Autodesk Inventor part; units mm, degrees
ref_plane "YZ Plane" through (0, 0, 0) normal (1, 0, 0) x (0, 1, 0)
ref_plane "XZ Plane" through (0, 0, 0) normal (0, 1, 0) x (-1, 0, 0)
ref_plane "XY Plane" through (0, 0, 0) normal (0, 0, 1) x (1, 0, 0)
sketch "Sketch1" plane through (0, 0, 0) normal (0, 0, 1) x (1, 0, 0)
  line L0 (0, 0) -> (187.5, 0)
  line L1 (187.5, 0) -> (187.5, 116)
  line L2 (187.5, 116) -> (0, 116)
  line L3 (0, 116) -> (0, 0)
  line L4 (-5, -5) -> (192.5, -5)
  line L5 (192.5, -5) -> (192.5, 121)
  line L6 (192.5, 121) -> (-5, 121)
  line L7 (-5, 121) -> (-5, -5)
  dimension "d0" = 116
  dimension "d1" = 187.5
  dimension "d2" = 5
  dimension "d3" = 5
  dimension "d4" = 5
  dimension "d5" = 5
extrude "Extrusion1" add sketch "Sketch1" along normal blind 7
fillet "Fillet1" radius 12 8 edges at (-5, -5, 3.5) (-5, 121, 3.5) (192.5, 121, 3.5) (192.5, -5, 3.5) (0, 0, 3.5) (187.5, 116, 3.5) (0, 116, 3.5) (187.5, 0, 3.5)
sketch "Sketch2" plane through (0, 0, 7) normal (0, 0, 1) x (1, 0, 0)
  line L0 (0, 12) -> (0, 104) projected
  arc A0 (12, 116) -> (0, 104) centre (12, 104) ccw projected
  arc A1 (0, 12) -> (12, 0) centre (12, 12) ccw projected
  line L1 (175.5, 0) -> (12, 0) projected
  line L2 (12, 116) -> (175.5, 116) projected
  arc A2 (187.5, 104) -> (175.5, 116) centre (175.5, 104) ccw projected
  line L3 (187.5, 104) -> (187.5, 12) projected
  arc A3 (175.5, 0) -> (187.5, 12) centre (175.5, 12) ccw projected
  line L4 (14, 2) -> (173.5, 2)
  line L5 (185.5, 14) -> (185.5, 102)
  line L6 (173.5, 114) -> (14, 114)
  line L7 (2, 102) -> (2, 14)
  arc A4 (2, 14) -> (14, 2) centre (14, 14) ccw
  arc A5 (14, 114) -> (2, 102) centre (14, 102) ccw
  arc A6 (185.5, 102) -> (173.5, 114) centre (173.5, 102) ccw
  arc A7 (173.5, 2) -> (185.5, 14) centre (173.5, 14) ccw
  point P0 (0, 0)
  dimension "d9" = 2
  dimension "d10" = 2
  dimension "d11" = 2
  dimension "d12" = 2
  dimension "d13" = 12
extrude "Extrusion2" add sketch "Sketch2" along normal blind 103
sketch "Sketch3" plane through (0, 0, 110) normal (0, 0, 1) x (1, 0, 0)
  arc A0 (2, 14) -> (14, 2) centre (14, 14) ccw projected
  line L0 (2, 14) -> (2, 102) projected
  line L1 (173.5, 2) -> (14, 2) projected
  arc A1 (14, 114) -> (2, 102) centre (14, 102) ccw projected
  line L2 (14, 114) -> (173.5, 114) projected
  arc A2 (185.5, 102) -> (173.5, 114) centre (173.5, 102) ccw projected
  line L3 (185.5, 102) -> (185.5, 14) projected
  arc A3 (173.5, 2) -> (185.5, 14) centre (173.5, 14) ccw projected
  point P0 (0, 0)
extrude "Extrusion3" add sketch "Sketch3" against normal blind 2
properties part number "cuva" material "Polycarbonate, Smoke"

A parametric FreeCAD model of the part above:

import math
import FreeCAD as App
import Part
import Sketcher
from FreeCAD import Vector
Q = App.Units.Quantity


def edges_at(feature, points):
    """Names of the edges that pass closest to the given points."""
    edges = feature.Shape.Edges
    near = lambda p: min(range(len(edges)), key=lambda i: edges[i].distToShape(Part.Vertex(*p))[0])
    return sorted({f"Edge{near(p) + 1}" for p in points})


def add_polygon(sketch, points):
    """Adds a closed chain of lines whose ends are joined by coincident constraints."""
    first, n = sketch.GeometryCount, len(points)
    for a, b in zip(points, points[1:] + points[:1]):
        sketch.addGeometry(Part.LineSegment(App.Vector(*a, 0), App.Vector(*b, 0)), False)
    for i in range(n):
        sketch.addConstraint(Sketcher.Constraint("Coincident", first + i, 2, first + (i + 1) % n, 1))

doc = App.newDocument("Part")
body = doc.addObject("PartDesign::Body", "Body")
body.AllowCompound = True

sketch1 = doc.addObject("Sketcher::SketchObject", "Sketch")
body.addObject(sketch1)
sketch1.AttachmentSupport = (doc.XY_Plane, [""])
sketch1.MapMode = "FlatFace"
add_polygon(sketch1, [(-5, 121), (-5, -5), (192, -5), (192, 121)])
add_polygon(sketch1, [(188, 0), (0, 0), (0, 116), (188, 116)])
sketch1.addConstraint([
    Sketcher.Constraint("Vertical", 0),
    Sketcher.Constraint("Horizontal", 1),
    Sketcher.Constraint("Vertical", 2),
    Sketcher.Constraint("Horizontal", 3),
    Sketcher.Constraint("Horizontal", 4),
    Sketcher.Constraint("Vertical", 5),
    Sketcher.Constraint("Horizontal", 6),
    Sketcher.Constraint("Vertical", 7),
    Sketcher.Constraint("Coincident", 4, 2, -1, 1),
    Sketcher.Constraint("DistanceY", 5, 1, 5, 2, Q("116 mm")),
    Sketcher.Constraint("DistanceX", 4, 2, 4, 1, Q("187.5 mm")),
    Sketcher.Constraint("DistanceX", 0, 2, -1, 1, Q("5 mm")),
    Sketcher.Constraint("DistanceY", 0, 2, -1, 1, Q("5 mm")),
    Sketcher.Constraint("DistanceY", 5, 2, 3, 2, Q("5 mm")),
    Sketcher.Constraint("DistanceX", 6, 2, 2, 2, Q("5 mm")),
])
pad1 = doc.addObject("PartDesign::Pad", "Pad")
body.addObject(pad1)
pad1.Profile = sketch1
pad1.Length = 7
doc.recompute()

fillet = doc.addObject("PartDesign::Fillet", "Fillet")
body.addObject(fillet)
fillet.Base = (pad1, edges_at(pad1, [
    (-5, -5, 3.5),
    (-5, 121, 3.5),
    (192.5, 121, 3.5),
    (192.5, -5, 3.5),
    (0, 0, 3.5),
    (187.5, 116, 3.5),
    (0, 116, 3.5),
    (187.5, 0, 3.5),
]))
fillet.Radius = 12

sketch2 = doc.addObject("Sketcher::SketchObject", "Sketch001")
body.addObject(sketch2)
sketch2.AttachmentSupport = (doc.XY_Plane, [""])
sketch2.MapMode = "FlatFace"
sketch2.AttachmentOffset = App.Placement(Vector(0, 0, 7), App.Rotation())
sketch2.addGeometry([
    Part.LineSegment(Vector(0, 104, 0), Vector(0, 12, 0)),
    Part.ArcOfCircle(Part.Circle(Vector(12, 12, 0), Vector(0, 0, 1), 12), math.radians(180), math.radians(270)),
    Part.LineSegment(Vector(12, 0, 0), Vector(176, 0, 0)),
    Part.ArcOfCircle(Part.Circle(Vector(176, 12, 0), Vector(0, 0, 1), 12), math.radians(-90), math.radians(0)),
    Part.LineSegment(Vector(188, 12, 0), Vector(188, 104, 0)),
    Part.ArcOfCircle(Part.Circle(Vector(176, 104, 0), Vector(0, 0, 1), 12), math.radians(0), math.radians(90)),
    Part.LineSegment(Vector(176, 116, 0), Vector(12, 116, 0)),
    Part.ArcOfCircle(Part.Circle(Vector(12, 104, 0), Vector(0, 0, 1), 12), math.radians(90), math.radians(180)),
    Part.LineSegment(Vector(174, 2, 0), Vector(14, 2, 0)),
    Part.ArcOfCircle(Part.Circle(Vector(14, 14, 0), Vector(0, 0, 1), 12), math.radians(180), math.radians(270)),
    Part.LineSegment(Vector(2, 14, 0), Vector(2, 102, 0)),
    Part.ArcOfCircle(Part.Circle(Vector(14, 102, 0), Vector(0, 0, 1), 12), math.radians(90), math.radians(180)),
    Part.LineSegment(Vector(14, 114, 0), Vector(174, 114, 0)),
    Part.ArcOfCircle(Part.Circle(Vector(174, 102, 0), Vector(0, 0, 1), 12), math.radians(0), math.radians(90)),
    Part.LineSegment(Vector(186, 102, 0), Vector(186, 14, 0)),
    Part.ArcOfCircle(Part.Circle(Vector(174, 14, 0), Vector(0, 0, 1), 12), math.radians(-90), math.radians(0)),
], False)
sketch2.addConstraint([
    Sketcher.Constraint("Tangent", 0, 2, 1, 1),
    Sketcher.Constraint("Tangent", 1, 2, 2, 1),
    Sketcher.Constraint("Tangent", 2, 2, 3, 1),
    Sketcher.Constraint("Tangent", 3, 2, 4, 1),
    Sketcher.Constraint("Tangent", 4, 2, 5, 1),
    Sketcher.Constraint("Tangent", 5, 2, 6, 1),
    Sketcher.Constraint("Tangent", 6, 2, 7, 1),
    Sketcher.Constraint("Tangent", 7, 2, 0, 1),
    Sketcher.Constraint("Tangent", 8, 2, 9, 2),
    Sketcher.Constraint("Tangent", 9, 1, 10, 1),
    Sketcher.Constraint("Tangent", 10, 2, 11, 2),
    Sketcher.Constraint("Tangent", 11, 1, 12, 1),
    Sketcher.Constraint("Tangent", 12, 2, 13, 2),
    Sketcher.Constraint("Tangent", 13, 1, 14, 1),
    Sketcher.Constraint("Tangent", 14, 2, 15, 2),
    Sketcher.Constraint("Tangent", 15, 1, 8, 1),
    Sketcher.Constraint("Vertical", 0),
    Sketcher.Constraint("Horizontal", 2),
    Sketcher.Constraint("Vertical", 4),
    Sketcher.Constraint("Horizontal", 6),
    Sketcher.Constraint("Horizontal", 8),
    Sketcher.Constraint("Vertical", 10),
    Sketcher.Constraint("Horizontal", 12),
    Sketcher.Constraint("Vertical", 14),
    Sketcher.Constraint("Equal", 1, 3),
    Sketcher.Constraint("Equal", 3, 5),
    Sketcher.Constraint("Equal", 5, 7),
    Sketcher.Constraint("Equal", 7, 9),
    Sketcher.Constraint("Equal", 9, 11),
    Sketcher.Constraint("Equal", 11, 13),
    Sketcher.Constraint("Equal", 13, 15),
    Sketcher.Constraint("PointOnObject", 0, 2, -2),
    Sketcher.Constraint("PointOnObject", 1, 2, -1),
    Sketcher.Constraint("Radius", 1, Q("12 mm")),
    Sketcher.Constraint("DistanceY", -1, 1, 8, 2, Q("2 mm")),
    Sketcher.Constraint("DistanceX", -1, 1, 9, 1, Q("2 mm")),
    Sketcher.Constraint("DistanceY", 11, 3, 7, 3, Q("2 mm")),
    Sketcher.Constraint("DistanceX", 13, 3, 5, 3, Q("2 mm")),
    Sketcher.Constraint("DistanceY", 0, 2, 0, 1, Q("92 mm")),
    Sketcher.Constraint("DistanceX", 2, 1, 2, 2, Q("163.5 mm")),
])
pad2 = doc.addObject("PartDesign::Pad", "Pad001")
body.addObject(pad2)
pad2.Profile = sketch2
pad2.Length = 103

sketch3 = doc.addObject("Sketcher::SketchObject", "Sketch002")
body.addObject(sketch3)
sketch3.AttachmentSupport = (doc.XY_Plane, [""])
sketch3.MapMode = "FlatFace"
sketch3.AttachmentOffset = App.Placement(Vector(0, 0, 110), App.Rotation())
sketch3.addGeometry([
    Part.LineSegment(Vector(2, 102, 0), Vector(2, 14, 0)),
    Part.ArcOfCircle(Part.Circle(Vector(14, 14, 0), Vector(0, 0, 1), 12), math.radians(180), math.radians(270)),
    Part.LineSegment(Vector(14, 2, 0), Vector(174, 2, 0)),
    Part.ArcOfCircle(Part.Circle(Vector(174, 14, 0), Vector(0, 0, 1), 12), math.radians(-90), math.radians(0)),
    Part.LineSegment(Vector(186, 14, 0), Vector(186, 102, 0)),
    Part.ArcOfCircle(Part.Circle(Vector(174, 102, 0), Vector(0, 0, 1), 12), math.radians(0), math.radians(90)),
    Part.LineSegment(Vector(174, 114, 0), Vector(14, 114, 0)),
    Part.ArcOfCircle(Part.Circle(Vector(14, 102, 0), Vector(0, 0, 1), 12), math.radians(90), math.radians(180)),
], False)
sketch3.addConstraint([
    Sketcher.Constraint("Tangent", 0, 2, 1, 1),
    Sketcher.Constraint("Tangent", 1, 2, 2, 1),
    Sketcher.Constraint("Tangent", 2, 2, 3, 1),
    Sketcher.Constraint("Tangent", 3, 2, 4, 1),
    Sketcher.Constraint("Tangent", 4, 2, 5, 1),
    Sketcher.Constraint("Tangent", 5, 2, 6, 1),
    Sketcher.Constraint("Tangent", 6, 2, 7, 1),
    Sketcher.Constraint("Tangent", 7, 2, 0, 1),
    Sketcher.Constraint("Vertical", 0),
    Sketcher.Constraint("Horizontal", 2),
    Sketcher.Constraint("Vertical", 4),
    Sketcher.Constraint("Horizontal", 6),
    Sketcher.Constraint("Equal", 1, 3),
    Sketcher.Constraint("Equal", 3, 5),
    Sketcher.Constraint("Equal", 5, 7),
    Sketcher.Constraint("Radius", 1, Q("12 mm")),
    Sketcher.Constraint("DistanceY", 0, 2, 0, 1, Q("88 mm")),
    Sketcher.Constraint("DistanceX", 2, 1, 2, 2, Q("159.5 mm")),
    Sketcher.Constraint("DistanceX", -1, 1, 1, 3, Q("14 mm")),
    Sketcher.Constraint("DistanceY", -1, 1, 1, 3, Q("14 mm")),
])
pad3 = doc.addObject("PartDesign::Pad", "Pad002")
body.addObject(pad3)
pad3.Profile = sketch3
pad3.Length = 2
pad3.Reversed = True

doc.recompute()
